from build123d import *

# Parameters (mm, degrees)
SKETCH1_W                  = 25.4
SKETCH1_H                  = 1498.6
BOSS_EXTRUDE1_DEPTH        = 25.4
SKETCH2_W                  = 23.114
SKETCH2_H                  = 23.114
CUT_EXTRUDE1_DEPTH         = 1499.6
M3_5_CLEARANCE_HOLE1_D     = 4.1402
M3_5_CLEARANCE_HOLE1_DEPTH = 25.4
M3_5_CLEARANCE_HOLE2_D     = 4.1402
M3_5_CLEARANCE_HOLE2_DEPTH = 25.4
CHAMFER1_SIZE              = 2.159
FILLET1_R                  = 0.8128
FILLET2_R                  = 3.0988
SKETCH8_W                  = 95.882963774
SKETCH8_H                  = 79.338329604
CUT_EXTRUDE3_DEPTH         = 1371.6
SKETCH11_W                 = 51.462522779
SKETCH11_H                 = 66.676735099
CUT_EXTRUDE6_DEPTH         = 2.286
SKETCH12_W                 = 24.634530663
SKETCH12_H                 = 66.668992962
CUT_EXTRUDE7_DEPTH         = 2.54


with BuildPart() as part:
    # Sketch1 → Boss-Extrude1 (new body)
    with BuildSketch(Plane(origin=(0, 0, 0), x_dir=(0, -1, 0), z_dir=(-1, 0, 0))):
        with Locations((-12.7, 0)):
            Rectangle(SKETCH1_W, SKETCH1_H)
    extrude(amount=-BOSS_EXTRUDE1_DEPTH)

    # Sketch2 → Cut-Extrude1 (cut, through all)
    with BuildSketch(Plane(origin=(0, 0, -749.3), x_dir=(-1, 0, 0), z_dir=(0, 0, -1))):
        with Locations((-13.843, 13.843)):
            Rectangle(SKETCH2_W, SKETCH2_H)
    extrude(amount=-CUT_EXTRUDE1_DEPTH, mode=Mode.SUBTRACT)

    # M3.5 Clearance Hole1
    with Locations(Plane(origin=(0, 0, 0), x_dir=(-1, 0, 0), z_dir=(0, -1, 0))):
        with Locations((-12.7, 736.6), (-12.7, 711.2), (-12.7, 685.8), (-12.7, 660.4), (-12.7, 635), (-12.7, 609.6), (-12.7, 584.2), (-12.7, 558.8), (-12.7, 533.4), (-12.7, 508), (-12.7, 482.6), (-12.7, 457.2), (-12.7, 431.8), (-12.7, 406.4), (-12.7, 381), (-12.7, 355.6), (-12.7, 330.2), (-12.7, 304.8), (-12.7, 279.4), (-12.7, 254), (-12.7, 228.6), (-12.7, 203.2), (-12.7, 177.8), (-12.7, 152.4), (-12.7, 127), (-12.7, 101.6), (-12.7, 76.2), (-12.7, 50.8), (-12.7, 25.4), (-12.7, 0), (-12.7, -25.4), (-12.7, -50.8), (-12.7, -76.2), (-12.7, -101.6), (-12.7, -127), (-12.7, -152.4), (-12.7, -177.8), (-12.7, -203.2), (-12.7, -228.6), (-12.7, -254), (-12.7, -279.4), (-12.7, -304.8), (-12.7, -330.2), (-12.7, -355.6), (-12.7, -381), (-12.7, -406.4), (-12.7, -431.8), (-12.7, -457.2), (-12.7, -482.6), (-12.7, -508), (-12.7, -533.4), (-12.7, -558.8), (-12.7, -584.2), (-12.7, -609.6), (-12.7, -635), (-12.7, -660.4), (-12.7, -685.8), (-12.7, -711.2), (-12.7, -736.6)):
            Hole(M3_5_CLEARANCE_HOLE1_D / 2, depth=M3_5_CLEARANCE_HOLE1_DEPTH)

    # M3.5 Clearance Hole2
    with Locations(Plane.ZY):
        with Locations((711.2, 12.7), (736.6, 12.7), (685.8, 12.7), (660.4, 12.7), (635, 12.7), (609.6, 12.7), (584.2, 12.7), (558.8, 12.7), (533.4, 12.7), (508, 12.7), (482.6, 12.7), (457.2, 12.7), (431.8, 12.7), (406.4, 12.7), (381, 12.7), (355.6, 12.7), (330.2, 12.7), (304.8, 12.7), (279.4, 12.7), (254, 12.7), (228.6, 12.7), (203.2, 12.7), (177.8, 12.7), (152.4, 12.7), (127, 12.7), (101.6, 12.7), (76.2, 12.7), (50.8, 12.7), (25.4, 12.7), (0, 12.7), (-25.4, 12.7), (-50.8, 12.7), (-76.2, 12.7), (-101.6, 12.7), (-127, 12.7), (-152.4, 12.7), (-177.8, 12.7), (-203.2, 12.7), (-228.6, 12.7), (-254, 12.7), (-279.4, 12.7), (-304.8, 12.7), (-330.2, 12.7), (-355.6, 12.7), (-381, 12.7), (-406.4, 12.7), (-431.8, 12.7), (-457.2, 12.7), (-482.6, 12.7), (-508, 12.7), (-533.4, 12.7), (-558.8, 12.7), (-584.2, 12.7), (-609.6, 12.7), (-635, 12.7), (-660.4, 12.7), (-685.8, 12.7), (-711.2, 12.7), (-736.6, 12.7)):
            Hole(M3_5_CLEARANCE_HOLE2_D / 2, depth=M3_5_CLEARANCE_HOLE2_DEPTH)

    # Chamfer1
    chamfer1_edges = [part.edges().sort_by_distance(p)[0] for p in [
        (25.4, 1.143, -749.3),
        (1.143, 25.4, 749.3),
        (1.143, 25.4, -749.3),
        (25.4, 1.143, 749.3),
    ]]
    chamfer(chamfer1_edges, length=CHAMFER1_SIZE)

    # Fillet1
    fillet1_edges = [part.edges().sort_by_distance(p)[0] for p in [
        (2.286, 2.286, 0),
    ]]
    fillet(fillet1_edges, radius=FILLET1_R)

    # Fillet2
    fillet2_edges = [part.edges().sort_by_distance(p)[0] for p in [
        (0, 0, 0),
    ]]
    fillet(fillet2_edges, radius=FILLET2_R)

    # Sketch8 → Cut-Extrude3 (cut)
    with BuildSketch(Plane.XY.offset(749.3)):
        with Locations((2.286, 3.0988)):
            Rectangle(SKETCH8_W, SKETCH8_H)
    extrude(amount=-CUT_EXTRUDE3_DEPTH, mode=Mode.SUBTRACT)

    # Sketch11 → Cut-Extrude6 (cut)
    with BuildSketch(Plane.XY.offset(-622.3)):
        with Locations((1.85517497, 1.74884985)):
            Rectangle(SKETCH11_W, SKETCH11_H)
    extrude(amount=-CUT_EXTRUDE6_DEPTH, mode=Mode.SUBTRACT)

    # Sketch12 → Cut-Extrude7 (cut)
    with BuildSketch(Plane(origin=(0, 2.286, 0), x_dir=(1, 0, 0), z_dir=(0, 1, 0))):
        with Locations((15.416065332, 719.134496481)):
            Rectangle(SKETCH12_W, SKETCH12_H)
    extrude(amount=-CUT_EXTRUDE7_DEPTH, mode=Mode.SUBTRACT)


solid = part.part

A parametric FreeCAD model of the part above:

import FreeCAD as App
import Part
import Sketcher
Q = App.Units.Quantity


def edges_at(feature, points):
    """Names of the edges that pass closest to the given points."""
    edges = feature.Shape.Edges
    near = lambda p: min(range(len(edges)), key=lambda i: edges[i].distToShape(Part.Vertex(*p))[0])
    return sorted({f"Edge{near(p) + 1}" for p in points})


def add_polygon(sketch, points):
    """Adds a closed chain of lines whose ends are joined by coincident constraints."""
    first, n = sketch.GeometryCount, len(points)
    for a, b in zip(points, points[1:] + points[:1]):
        sketch.addGeometry(Part.LineSegment(App.Vector(*a, 0), App.Vector(*b, 0)), False)
    for i in range(n):
        sketch.addConstraint(Sketcher.Constraint("Coincident", first + i, 2, first + (i + 1) % n, 1))

doc = App.newDocument("Part")
params = doc.addObject("Spreadsheet::Sheet", "Params")
for row, (alias, value) in enumerate([
    ("sketch1_width", "1 in"),
    ("sketch1_height", "59 in"),
    ("pad1_length", "1 in"),
    ("sketch2_width", "0.91 in"),
    ("sketch3_diameter", "0.163 in"),
    ("hole_diameter", "0.163 in"),
    ("hole_depth", "1 in"),
    ("sketch4_diameter", "0.163 in"),
    ("hole2_diameter", "0.163 in"),
    ("hole2_depth", "1 in"),
    ("chamfer_size", "0.085 in"),
    ("fillet_radius", "0.032 in"),
    ("fillet2_radius", "0.122 in"),
    ("pocket2_length", "54 in"),
    ("pocket3_length", "0.09 in"),
    ("pocket4_length", "0.1 in"),
], start=1):
    params.set(f"A{row}", alias)
    params.set(f"B{row}", "=" + value)
    params.setAlias(f"B{row}", alias)

body = doc.addObject("PartDesign::Body", "Body")

sketch1 = body.newObject("Sketcher::SketchObject", "Sketch")
sketch1.AttachmentSupport = (doc.getObject("YZ_Plane"), [""])
sketch1.MapMode = "FlatFace"
add_polygon(sketch1, [(25, 749), (25, -749), (0, -749), (0, 749)])
sketch1.addConstraint([
    Sketcher.Constraint("Vertical", 0),
    Sketcher.Constraint("Horizontal", 1),
    Sketcher.Constraint("Vertical", 2),
    Sketcher.Constraint("Horizontal", 3),
    Sketcher.Constraint("Symmetric", 1, 2, 2, 2, -1, 1),
    Sketcher.Constraint("DistanceX", 1, 2, 1, 1, Q("1 in")),
    Sketcher.Constraint("DistanceY", 0, 2, 0, 1, Q("59 in")),
])
sketch1.setExpression("Constraints[9]", "Params.sketch1_width")
sketch1.setExpression("Constraints[10]", "Params.sketch1_height")
pad1 = body.newObject("PartDesign::Pad", "Pad")
pad1.Profile = sketch1
pad1.setExpression("Length", "Params.pad1_length")

sketch2 = body.newObject("Sketcher::SketchObject", "Sketch001")
sketch2.AttachmentSupport = (doc.getObject("XY_Plane"), [""])
sketch2.MapMode = "FlatFace"
sketch2.AttachmentOffset = App.Placement(App.Vector(0, 0, -29.5 * 25.4), App.Rotation())
add_polygon(sketch2, [(25, 25), (25, 2), (2, 2), (2, 25)])
sketch2.addConstraint([
    Sketcher.Constraint("Vertical", 0),
    Sketcher.Constraint("Horizontal", 1),
    Sketcher.Constraint("Vertical", 2),
    Sketcher.Constraint("Horizontal", 3),
    Sketcher.Constraint("Equal", 3, 0),
    Sketcher.Constraint("DistanceX", -1, 1, 0, 2, Q("1 in")),
    Sketcher.Constraint("DistanceY", -1, 1, 2, 2, Q("1 in")),
    Sketcher.Constraint("DistanceX", 1, 2, 1, 1, Q("0.91 in")),
])
sketch2.setExpression("Constraints[11]", "Params.sketch2_width")
pocket1 = body.newObject("PartDesign::Pocket", "Pocket")
pocket1.Profile = sketch2
pocket1.Type = "ThroughAll"
pocket1.Reversed = True

sketch3 = body.newObject("Sketcher::SketchObject", "Sketch002")
sketch3.AttachmentSupport = (doc.getObject("XZ_Plane"), [""])
sketch3.MapMode = "FlatFace"
sketch3.addGeometry([
    Part.Circle(App.Vector(12.7, -736.6, 0), App.Vector(0, 0, 1), 2.1),
    Part.Circle(App.Vector(12.7, -711.2, 0), App.Vector(0, 0, 1), 2.1),
    Part.Circle(App.Vector(12.7, -685.8, 0), App.Vector(0, 0, 1), 2.1),
    Part.Circle(App.Vector(12.7, -660.4, 0), App.Vector(0, 0, 1), 2.1),
    Part.Circle(App.Vector(12.7, -635, 0), App.Vector(0, 0, 1), 2.1),
    Part.Circle(App.Vector(12.7, -609.6, 0), App.Vector(0, 0, 1), 2.1),
    Part.Circle(App.Vector(12.7, -584.2, 0), App.Vector(0, 0, 1), 2.1),
    Part.Circle(App.Vector(12.7, -558.8, 0), App.Vector(0, 0, 1), 2.1),
    Part.Circle(App.Vector(12.7, -533.4, 0), App.Vector(0, 0, 1), 2.1),
    Part.Circle(App.Vector(12.7, -508, 0), App.Vector(0, 0, 1), 2.1),
    Part.Circle(App.Vector(12.7, -482.6, 0), App.Vector(0, 0, 1), 2.1),
    Part.Circle(App.Vector(12.7, -457.2, 0), App.Vector(0, 0, 1), 2.1),
    Part.Circle(App.Vector(12.7, -431.8, 0), App.Vector(0, 0, 1), 2.1),
    Part.Circle(App.Vector(12.7, -406.4, 0), App.Vector(0, 0, 1), 2.1),
    Part.Circle(App.Vector(12.7, -381, 0), App.Vector(0, 0, 1), 2.1),
    Part.Circle(App.Vector(12.7, -355.6, 0), App.Vector(0, 0, 1), 2.1),
    Part.Circle(App.Vector(12.7, -330.2, 0), App.Vector(0, 0, 1), 2.1),
    Part.Circle(App.Vector(12.7, -304.8, 0), App.Vector(0, 0, 1), 2.1),
    Part.Circle(App.Vector(12.7, -279.4, 0), App.Vector(0, 0, 1), 2.1),
    Part.Circle(App.Vector(12.7, -254, 0), App.Vector(0, 0, 1), 2.1),
    Part.Circle(App.Vector(12.7, -228.6, 0), App.Vector(0, 0, 1), 2.1),
    Part.Circle(App.Vector(12.7, -203.2, 0), App.Vector(0, 0, 1), 2.1),
    Part.Circle(App.Vector(12.7, -177.8, 0), App.Vector(0, 0, 1), 2.1),
    Part.Circle(App.Vector(12.7, -152.4, 0), App.Vector(0, 0, 1), 2.1),
    Part.Circle(App.Vector(12.7, -127, 0), App.Vector(0, 0, 1), 2.1),
    Part.Circle(App.Vector(12.7, -101.6, 0), App.Vector(0, 0, 1), 2.1),
    Part.Circle(App.Vector(12.7, -76.2, 0), App.Vector(0, 0, 1), 2.1),
    Part.Circle(App.Vector(12.7, -50.8, 0), App.Vector(0, 0, 1), 2.1),
    Part.Circle(App.Vector(12.7, -25.4, 0), App.Vector(0, 0, 1), 2.1),
    Part.Circle(App.Vector(12.7, 0, 0), App.Vector(0, 0, 1), 2.1),
    Part.Circle(App.Vector(12.7, 25.4, 0), App.Vector(0, 0, 1), 2.1),
    Part.Circle(App.Vector(12.7, 50.8, 0), App.Vector(0, 0, 1), 2.1),
    Part.Circle(App.Vector(12.7, 76.2, 0), App.Vector(0, 0, 1), 2.1),
    Part.Circle(App.Vector(12.7, 101.6, 0), App.Vector(0, 0, 1), 2.1),
    Part.Circle(App.Vector(12.7, 127, 0), App.Vector(0, 0, 1), 2.1),
    Part.Circle(App.Vector(12.7, 152.4, 0), App.Vector(0, 0, 1), 2.1),
    Part.Circle(App.Vector(12.7, 177.8, 0), App.Vector(0, 0, 1), 2.1),
    Part.Circle(App.Vector(12.7, 203.2, 0), App.Vector(0, 0, 1), 2.1),
    Part.Circle(App.Vector(12.7, 228.6, 0), App.Vector(0, 0, 1), 2.1),
    Part.Circle(App.Vector(12.7, 254, 0), App.Vector(0, 0, 1), 2.1),
    Part.Circle(App.Vector(12.7, 279.4, 0), App.Vector(0, 0, 1), 2.1),
    Part.Circle(App.Vector(12.7, 304.8, 0), App.Vector(0, 0, 1), 2.1),
    Part.Circle(App.Vector(12.7, 330.2, 0), App.Vector(0, 0, 1), 2.1),
    Part.Circle(App.Vector(12.7, 355.6, 0), App.Vector(0, 0, 1), 2.1),
    Part.Circle(App.Vector(12.7, 381, 0), App.Vector(0, 0, 1), 2.1),
    Part.Circle(App.Vector(12.7, 406.4, 0), App.Vector(0, 0, 1), 2.1),
    Part.Circle(App.Vector(12.7, 431.8, 0), App.Vector(0, 0, 1), 2.1),
    Part.Circle(App.Vector(12.7, 457.2, 0), App.Vector(0, 0, 1), 2.1),
    Part.Circle(App.Vector(12.7, 482.6, 0), App.Vector(0, 0, 1), 2.1),
    Part.Circle(App.Vector(12.7, 508, 0), App.Vector(0, 0, 1), 2.1),
    Part.Circle(App.Vector(12.7, 533.4, 0), App.Vector(0, 0, 1), 2.1),
    Part.Circle(App.Vector(12.7, 558.8, 0), App.Vector(0, 0, 1), 2.1),
    Part.Circle(App.Vector(12.7, 584.2, 0), App.Vector(0, 0, 1), 2.1),
    Part.Circle(App.Vector(12.7, 609.6, 0), App.Vector(0, 0, 1), 2.1),
    Part.Circle(App.Vector(12.7, 635, 0), App.Vector(0, 0, 1), 2.1),
    Part.Circle(App.Vector(12.7, 660.4, 0), App.Vector(0, 0, 1), 2.1),
    Part.Circle(App.Vector(12.7, 685.8, 0), App.Vector(0, 0, 1), 2.1),
    Part.Circle(App.Vector(12.7, 711.2, 0), App.Vector(0, 0, 1), 2.1),
    Part.Circle(App.Vector(12.7, 736.6, 0), App.Vector(0, 0, 1), 2.1),
], False)
sketch3.addConstraint([
    Sketcher.Constraint("Equal", 0, 1),
    Sketcher.Constraint("Equal", 1, 2),
    Sketcher.Constraint("Equal", 2, 3),
    Sketcher.Constraint("Equal", 3, 4),
    Sketcher.Constraint("Equal", 4, 5),
    Sketcher.Constraint("Equal", 5, 6),
    Sketcher.Constraint("Equal", 6, 7),
    Sketcher.Constraint("Equal", 7, 8),
    Sketcher.Constraint("Equal", 8, 9),
    Sketcher.Constraint("Equal", 9, 10),
    Sketcher.Constraint("Equal", 10, 11),
    Sketcher.Constraint("Equal", 11, 12),
    Sketcher.Constraint("Equal", 12, 13),
    Sketcher.Constraint("Equal", 13, 14),
    Sketcher.Constraint("Equal", 14, 15),
    Sketcher.Constraint("Equal", 15, 16),
    Sketcher.Constraint("Equal", 16, 17),
    Sketcher.Constraint("Equal", 17, 18),
    Sketcher.Constraint("Equal", 18, 19),
    Sketcher.Constraint("Equal", 19, 20),
    Sketcher.Constraint("Equal", 20, 21),
    Sketcher.Constraint("Equal", 21, 22),
    Sketcher.Constraint("Equal", 22, 23),
    Sketcher.Constraint("Equal", 23, 24),
    Sketcher.Constraint("Equal", 24, 25),
    Sketcher.Constraint("Equal", 25, 26),
    Sketcher.Constraint("Equal", 26, 27),
    Sketcher.Constraint("Equal", 27, 28),
    Sketcher.Constraint("Equal", 28, 29),
    Sketcher.Constraint("Equal", 29, 30),
    Sketcher.Constraint("Equal", 30, 31),
    Sketcher.Constraint("Equal", 31, 32),
    Sketcher.Constraint("Equal", 32, 33),
    Sketcher.Constraint("Equal", 33, 34),
    Sketcher.Constraint("Equal", 34, 35),
    Sketcher.Constraint("Equal", 35, 36),
    Sketcher.Constraint("Equal", 36, 37),
    Sketcher.Constraint("Equal", 37, 38),
    Sketcher.Constraint("Equal", 38, 39),
    Sketcher.Constraint("Equal", 39, 40),
    Sketcher.Constraint("Equal", 40, 41),
    Sketcher.Constraint("Equal", 41, 42),
    Sketcher.Constraint("Equal", 42, 43),
    Sketcher.Constraint("Equal", 43, 44),
    Sketcher.Constraint("Equal", 44, 45),
    Sketcher.Constraint("Equal", 45, 46),
    Sketcher.Constraint("Equal", 46, 47),
    Sketcher.Constraint("Equal", 47, 48),
    Sketcher.Constraint("Equal", 48, 49),
    Sketcher.Constraint("Equal", 49, 50),
    Sketcher.Constraint("Equal", 50, 51),
    Sketcher.Constraint("Equal", 51, 52),
    Sketcher.Constraint("Equal", 52, 53),
    Sketcher.Constraint("Equal", 53, 54),
    Sketcher.Constraint("Equal", 54, 55),
    Sketcher.Constraint("Equal", 55, 56),
    Sketcher.Constraint("Equal", 56, 57),
    Sketcher.Constraint("Equal", 57, 58),
    Sketcher.Constraint("Symmetric", 28, 3, 30, 3, -1),
    Sketcher.Constraint("Symmetric", 27, 3, 31, 3, -1),
    Sketcher.Constraint("Symmetric", 26, 3, 32, 3, -1),
    Sketcher.Constraint("Symmetric", 25, 3, 33, 3, -1),
    Sketcher.Constraint("Symmetric", 24, 3, 34, 3, -1),
    Sketcher.Constraint("Symmetric", 23, 3, 35, 3, -1),
    Sketcher.Constraint("Symmetric", 22, 3, 36, 3, -1),
    Sketcher.Constraint("Symmetric", 21, 3, 37, 3, -1),
    Sketcher.Constraint("Symmetric", 20, 3, 38, 3, -1),
    Sketcher.Constraint("Symmetric", 19, 3, 39, 3, -1),
    Sketcher.Constraint("Symmetric", 18, 3, 40, 3, -1),
    Sketcher.Constraint("Symmetric", 17, 3, 41, 3, -1),
    Sketcher.Constraint("Symmetric", 16, 3, 42, 3, -1),
    Sketcher.Constraint("Symmetric", 15, 3, 43, 3, -1),
    Sketcher.Constraint("Symmetric", 14, 3, 44, 3, -1),
    Sketcher.Constraint("Symmetric", 13, 3, 45, 3, -1),
    Sketcher.Constraint("Symmetric", 12, 3, 46, 3, -1),
    Sketcher.Constraint("Symmetric", 11, 3, 47, 3, -1),
    Sketcher.Constraint("Symmetric", 10, 3, 48, 3, -1),
    Sketcher.Constraint("Symmetric", 9, 3, 49, 3, -1),
    Sketcher.Constraint("Symmetric", 8, 3, 50, 3, -1),
    Sketcher.Constraint("Symmetric", 7, 3, 51, 3, -1),
    Sketcher.Constraint("Symmetric", 6, 3, 52, 3, -1),
    Sketcher.Constraint("Symmetric", 5, 3, 53, 3, -1),
    Sketcher.Constraint("Symmetric", 4, 3, 54, 3, -1),
    Sketcher.Constraint("Symmetric", 3, 3, 55, 3, -1),
    Sketcher.Constraint("Symmetric", 2, 3, 56, 3, -1),
    Sketcher.Constraint("Symmetric", 1, 3, 57, 3, -1),
    Sketcher.Constraint("Symmetric", 0, 3, 58, 3, -1),
    Sketcher.Constraint("PointOnObject", 29, 3, -1),
    Sketcher.Constraint("Vertical", 0, 3, 1, 3),
    Sketcher.Constraint("Vertical", 1, 3, 2, 3),
    Sketcher.Constraint("Vertical", 2, 3, 3, 3),
    Sketcher.Constraint("Vertical", 3, 3, 4, 3),
    Sketcher.Constraint("Vertical", 4, 3, 5, 3),
    Sketcher.Constraint("Vertical", 5, 3, 6, 3),
    Sketcher.Constraint("Vertical", 6, 3, 7, 3),
    Sketcher.Constraint("Vertical", 7, 3, 8, 3),
    Sketcher.Constraint("Vertical", 8, 3, 9, 3),
    Sketcher.Constraint("Vertical", 9, 3, 10, 3),
    Sketcher.Constraint("Vertical", 10, 3, 11, 3),
    Sketcher.Constraint("Vertical", 11, 3, 12, 3),
    Sketcher.Constraint("Vertical", 12, 3, 13, 3),
    Sketcher.Constraint("Vertical", 13, 3, 14, 3),
    Sketcher.Constraint("Vertical", 14, 3, 15, 3),
    Sketcher.Constraint("Vertical", 15, 3, 16, 3),
    Sketcher.Constraint("Vertical", 16, 3, 17, 3),
    Sketcher.Constraint("Vertical", 17, 3, 18, 3),
    Sketcher.Constraint("Vertical", 18, 3, 19, 3),
    Sketcher.Constraint("Vertical", 19, 3, 20, 3),
    Sketcher.Constraint("Vertical", 20, 3, 21, 3),
    Sketcher.Constraint("Vertical", 21, 3, 22, 3),
    Sketcher.Constraint("Vertical", 22, 3, 23, 3),
    Sketcher.Constraint("Vertical", 23, 3, 24, 3),
    Sketcher.Constraint("Vertical", 24, 3, 25, 3),
    Sketcher.Constraint("Vertical", 25, 3, 26, 3),
    Sketcher.Constraint("Vertical", 26, 3, 27, 3),
    Sketcher.Constraint("Vertical", 27, 3, 28, 3),
    Sketcher.Constraint("Vertical", 28, 3, 29, 3),
    Sketcher.Constraint("Diameter", 0, Q("0.163 in")),
    Sketcher.Constraint("DistanceY", 0, 3, -1, 1, Q("29 in")),
    Sketcher.Constraint("DistanceY", 1, 3, -1, 1, Q("28 in")),
    Sketcher.Constraint("DistanceY", 2, 3, -1, 1, Q("27 in")),
    Sketcher.Constraint("DistanceY", 3, 3, -1, 1, Q("26 in")),
    Sketcher.Constraint("DistanceY", 4, 3, -1, 1, Q("25 in")),
    Sketcher.Constraint("DistanceY", 5, 3, -1, 1, Q("24 in")),
    Sketcher.Constraint("DistanceY", 6, 3, -1, 1, Q("23 in")),
    Sketcher.Constraint("DistanceY", 7, 3, -1, 1, Q("22 in")),
    Sketcher.Constraint("DistanceY", 8, 3, -1, 1, Q("21 in")),
    Sketcher.Constraint("DistanceY", 9, 3, -1, 1, Q("20 in")),
    Sketcher.Constraint("DistanceY", 10, 3, -1, 1, Q("19 in")),
    Sketcher.Constraint("DistanceY", 11, 3, -1, 1, Q("18 in")),
    Sketcher.Constraint("DistanceY", 12, 3, -1, 1, Q("17 in")),
    Sketcher.Constraint("DistanceY", 13, 3, -1, 1, Q("16 in")),
    Sketcher.Constraint("DistanceY", 14, 3, -1, 1, Q("15 in")),
    Sketcher.Constraint("DistanceY", 15, 3, -1, 1, Q("14 in")),
    Sketcher.Constraint("DistanceY", 16, 3, -1, 1, Q("13 in")),
    Sketcher.Constraint("DistanceY", 17, 3, -1, 1, Q("12 in")),
    Sketcher.Constraint("DistanceY", 18, 3, -1, 1, Q("11 in")),
    Sketcher.Constraint("DistanceY", 19, 3, -1, 1, Q("10 in")),
    Sketcher.Constraint("DistanceY", 20, 3, -1, 1, Q("9 in")),
    Sketcher.Constraint("DistanceY", 21, 3, -1, 1, Q("8 in")),
    Sketcher.Constraint("DistanceY", 22, 3, -1, 1, Q("7 in")),
    Sketcher.Constraint("DistanceY", 23, 3, -1, 1, Q("6 in")),
    Sketcher.Constraint("DistanceY", 24, 3, -1, 1, Q("5 in")),
    Sketcher.Constraint("DistanceY", 25, 3, -1, 1, Q("4 in")),
    Sketcher.Constraint("DistanceY", 26, 3, -1, 1, Q("3 in")),
    Sketcher.Constraint("DistanceY", 27, 3, -1, 1, Q("2 in")),
    Sketcher.Constraint("DistanceY", 28, 3, -1, 1, Q("1 in")),
    Sketcher.Constraint("DistanceX", -1, 1, 0, 3, Q("0.5 in")),
])
sketch3.setExpression("Constraints[117]", "Params.sketch3_diameter")
doc.recompute()
hole = body.newObject("PartDesign::Hole", "Hole")
hole.Profile = sketch3
hole.ThreadType = "None"
hole.setExpression("Diameter", "Params.hole_diameter")
hole.DepthType = "Dimension"
hole.setExpression("Depth", "Params.hole_depth")
hole.DrillPoint = "Flat"

sketch4 = body.newObject("Sketcher::SketchObject", "Sketch003")
sketch4.AttachmentSupport = (doc.getObject("YZ_Plane"), [""])
sketch4.MapMode = "FlatFace"
sketch4.addGeometry([
    Part.Circle(App.Vector(12.7, 711.2, 0), App.Vector(0, 0, 1), 2.1),
    Part.Circle(App.Vector(12.7, 736.6, 0), App.Vector(0, 0, 1), 2.1),
    Part.Circle(App.Vector(12.7, 685.8, 0), App.Vector(0, 0, 1), 2.1),
    Part.Circle(App.Vector(12.7, 660.4, 0), App.Vector(0, 0, 1), 2.1),
    Part.Circle(App.Vector(12.7, 635, 0), App.Vector(0, 0, 1), 2.1),
    Part.Circle(App.Vector(12.7, 609.6, 0), App.Vector(0, 0, 1), 2.1),
    Part.Circle(App.Vector(12.7, 584.2, 0), App.Vector(0, 0, 1), 2.1),
    Part.Circle(App.Vector(12.7, 558.8, 0), App.Vector(0, 0, 1), 2.1),
    Part.Circle(App.Vector(12.7, 533.4, 0), App.Vector(0, 0, 1), 2.1),
    Part.Circle(App.Vector(12.7, 508, 0), App.Vector(0, 0, 1), 2.1),
    Part.Circle(App.Vector(12.7, 482.6, 0), App.Vector(0, 0, 1), 2.1),
    Part.Circle(App.Vector(12.7, 457.2, 0), App.Vector(0, 0, 1), 2.1),
    Part.Circle(App.Vector(12.7, 431.8, 0), App.Vector(0, 0, 1), 2.1),
    Part.Circle(App.Vector(12.7, 406.4, 0), App.Vector(0, 0, 1), 2.1),
    Part.Circle(App.Vector(12.7, 381, 0), App.Vector(0, 0, 1), 2.1),
    Part.Circle(App.Vector(12.7, 355.6, 0), App.Vector(0, 0, 1), 2.1),
    Part.Circle(App.Vector(12.7, 330.2, 0), App.Vector(0, 0, 1), 2.1),
    Part.Circle(App.Vector(12.7, 304.8, 0), App.Vector(0, 0, 1), 2.1),
    Part.Circle(App.Vector(12.7, 279.4, 0), App.Vector(0, 0, 1), 2.1),
    Part.Circle(App.Vector(12.7, 254, 0), App.Vector(0, 0, 1), 2.1),
    Part.Circle(App.Vector(12.7, 228.6, 0), App.Vector(0, 0, 1), 2.1),
    Part.Circle(App.Vector(12.7, 203.2, 0), App.Vector(0, 0, 1), 2.1),
    Part.Circle(App.Vector(12.7, 177.8, 0), App.Vector(0, 0, 1), 2.1),
    Part.Circle(App.Vector(12.7, 152.4, 0), App.Vector(0, 0, 1), 2.1),
    Part.Circle(App.Vector(12.7, 127, 0), App.Vector(0, 0, 1), 2.1),
    Part.Circle(App.Vector(12.7, 101.6, 0), App.Vector(0, 0, 1), 2.1),
    Part.Circle(App.Vector(12.7, 76.2, 0), App.Vector(0, 0, 1), 2.1),
    Part.Circle(App.Vector(12.7, 50.8, 0), App.Vector(0, 0, 1), 2.1),
    Part.Circle(App.Vector(12.7, 25.4, 0), App.Vector(0, 0, 1), 2.1),
    Part.Circle(App.Vector(12.7, 0, 0), App.Vector(0, 0, 1), 2.1),
    Part.Circle(App.Vector(12.7, -25.4, 0), App.Vector(0, 0, 1), 2.1),
    Part.Circle(App.Vector(12.7, -50.8, 0), App.Vector(0, 0, 1), 2.1),
    Part.Circle(App.Vector(12.7, -76.2, 0), App.Vector(0, 0, 1), 2.1),
    Part.Circle(App.Vector(12.7, -101.6, 0), App.Vector(0, 0, 1), 2.1),
    Part.Circle(App.Vector(12.7, -127, 0), App.Vector(0, 0, 1), 2.1),
    Part.Circle(App.Vector(12.7, -152.4, 0), App.Vector(0, 0, 1), 2.1),
    Part.Circle(App.Vector(12.7, -177.8, 0), App.Vector(0, 0, 1), 2.1),
    Part.Circle(App.Vector(12.7, -203.2, 0), App.Vector(0, 0, 1), 2.1),
    Part.Circle(App.Vector(12.7, -228.6, 0), App.Vector(0, 0, 1), 2.1),
    Part.Circle(App.Vector(12.7, -254, 0), App.Vector(0, 0, 1), 2.1),
    Part.Circle(App.Vector(12.7, -279.4, 0), App.Vector(0, 0, 1), 2.1),
    Part.Circle(App.Vector(12.7, -304.8, 0), App.Vector(0, 0, 1), 2.1),
    Part.Circle(App.Vector(12.7, -330.2, 0), App.Vector(0, 0, 1), 2.1),
    Part.Circle(App.Vector(12.7, -355.6, 0), App.Vector(0, 0, 1), 2.1),
    Part.Circle(App.Vector(12.7, -381, 0), App.Vector(0, 0, 1), 2.1),
    Part.Circle(App.Vector(12.7, -406.4, 0), App.Vector(0, 0, 1), 2.1),
    Part.Circle(App.Vector(12.7, -431.8, 0), App.Vector(0, 0, 1), 2.1),
    Part.Circle(App.Vector(12.7, -457.2, 0), App.Vector(0, 0, 1), 2.1),
    Part.Circle(App.Vector(12.7, -482.6, 0), App.Vector(0, 0, 1), 2.1),
    Part.Circle(App.Vector(12.7, -508, 0), App.Vector(0, 0, 1), 2.1),
    Part.Circle(App.Vector(12.7, -533.4, 0), App.Vector(0, 0, 1), 2.1),
    Part.Circle(App.Vector(12.7, -558.8, 0), App.Vector(0, 0, 1), 2.1),
    Part.Circle(App.Vector(12.7, -584.2, 0), App.Vector(0, 0, 1), 2.1),
    Part.Circle(App.Vector(12.7, -609.6, 0), App.Vector(0, 0, 1), 2.1),
    Part.Circle(App.Vector(12.7, -635, 0), App.Vector(0, 0, 1), 2.1),
    Part.Circle(App.Vector(12.7, -660.4, 0), App.Vector(0, 0, 1), 2.1),
    Part.Circle(App.Vector(12.7, -685.8, 0), App.Vector(0, 0, 1), 2.1),
    Part.Circle(App.Vector(12.7, -711.2, 0), App.Vector(0, 0, 1), 2.1),
    Part.Circle(App.Vector(12.7, -736.6, 0), App.Vector(0, 0, 1), 2.1),
], False)
sketch4.addConstraint([
    Sketcher.Constraint("Equal", 0, 1),
    Sketcher.Constraint("Equal", 1, 2),
    Sketcher.Constraint("Equal", 2, 3),
    Sketcher.Constraint("Equal", 3, 4),
    Sketcher.Constraint("Equal", 4, 5),
    Sketcher.Constraint("Equal", 5, 6),
    Sketcher.Constraint("Equal", 6, 7),
    Sketcher.Constraint("Equal", 7, 8),
    Sketcher.Constraint("Equal", 8, 9),
    Sketcher.Constraint("Equal", 9, 10),
    Sketcher.Constraint("Equal", 10, 11),
    Sketcher.Constraint("Equal", 11, 12),
    Sketcher.Constraint("Equal", 12, 13),
    Sketcher.Constraint("Equal", 13, 14),
    Sketcher.Constraint("Equal", 14, 15),
    Sketcher.Constraint("Equal", 15, 16),
    Sketcher.Constraint("Equal", 16, 17),
    Sketcher.Constraint("Equal", 17, 18),
    Sketcher.Constraint("Equal", 18, 19),
    Sketcher.Constraint("Equal", 19, 20),
    Sketcher.Constraint("Equal", 20, 21),
    Sketcher.Constraint("Equal", 21, 22),
    Sketcher.Constraint("Equal", 22, 23),
    Sketcher.Constraint("Equal", 23, 24),
    Sketcher.Constraint("Equal", 24, 25),
    Sketcher.Constraint("Equal", 25, 26),
    Sketcher.Constraint("Equal", 26, 27),
    Sketcher.Constraint("Equal", 27, 28),
    Sketcher.Constraint("Equal", 28, 29),
    Sketcher.Constraint("Equal", 29, 30),
    Sketcher.Constraint("Equal", 30, 31),
    Sketcher.Constraint("Equal", 31, 32),
    Sketcher.Constraint("Equal", 32, 33),
    Sketcher.Constraint("Equal", 33, 34),
    Sketcher.Constraint("Equal", 34, 35),
    Sketcher.Constraint("Equal", 35, 36),
    Sketcher.Constraint("Equal", 36, 37),
    Sketcher.Constraint("Equal", 37, 38),
    Sketcher.Constraint("Equal", 38, 39),
    Sketcher.Constraint("Equal", 39, 40),
    Sketcher.Constraint("Equal", 40, 41),
    Sketcher.Constraint("Equal", 41, 42),
    Sketcher.Constraint("Equal", 42, 43),
    Sketcher.Constraint("Equal", 43, 44),
    Sketcher.Constraint("Equal", 44, 45),
    Sketcher.Constraint("Equal", 45, 46),
    Sketcher.Constraint("Equal", 46, 47),
    Sketcher.Constraint("Equal", 47, 48),
    Sketcher.Constraint("Equal", 48, 49),
    Sketcher.Constraint("Equal", 49, 50),
    Sketcher.Constraint("Equal", 50, 51),
    Sketcher.Constraint("Equal", 51, 52),
    Sketcher.Constraint("Equal", 52, 53),
    Sketcher.Constraint("Equal", 53, 54),
    Sketcher.Constraint("Equal", 54, 55),
    Sketcher.Constraint("Equal", 55, 56),
    Sketcher.Constraint("Equal", 56, 57),
    Sketcher.Constraint("Equal", 57, 58),
    Sketcher.Constraint("Symmetric", 28, 3, 30, 3, -1),
    Sketcher.Constraint("Symmetric", 27, 3, 31, 3, -1),
    Sketcher.Constraint("Symmetric", 26, 3, 32, 3, -1),
    Sketcher.Constraint("Symmetric", 25, 3, 33, 3, -1),
    Sketcher.Constraint("Symmetric", 24, 3, 34, 3, -1),
    Sketcher.Constraint("Symmetric", 23, 3, 35, 3, -1),
    Sketcher.Constraint("Symmetric", 22, 3, 36, 3, -1),
    Sketcher.Constraint("Symmetric", 21, 3, 37, 3, -1),
    Sketcher.Constraint("Symmetric", 20, 3, 38, 3, -1),
    Sketcher.Constraint("Symmetric", 19, 3, 39, 3, -1),
    Sketcher.Constraint("Symmetric", 18, 3, 40, 3, -1),
    Sketcher.Constraint("Symmetric", 17, 3, 41, 3, -1),
    Sketcher.Constraint("Symmetric", 16, 3, 42, 3, -1),
    Sketcher.Constraint("Symmetric", 15, 3, 43, 3, -1),
    Sketcher.Constraint("Symmetric", 14, 3, 44, 3, -1),
    Sketcher.Constraint("Symmetric", 13, 3, 45, 3, -1),
    Sketcher.Constraint("Symmetric", 12, 3, 46, 3, -1),
    Sketcher.Constraint("Symmetric", 11, 3, 47, 3, -1),
    Sketcher.Constraint("Symmetric", 10, 3, 48, 3, -1),
    Sketcher.Constraint("Symmetric", 9, 3, 49, 3, -1),
    Sketcher.Constraint("Symmetric", 8, 3, 50, 3, -1),
    Sketcher.Constraint("Symmetric", 7, 3, 51, 3, -1),
    Sketcher.Constraint("Symmetric", 6, 3, 52, 3, -1),
    Sketcher.Constraint("Symmetric", 5, 3, 53, 3, -1),
    Sketcher.Constraint("Symmetric", 4, 3, 54, 3, -1),
    Sketcher.Constraint("Symmetric", 3, 3, 55, 3, -1),
    Sketcher.Constraint("Symmetric", 2, 3, 56, 3, -1),
    Sketcher.Constraint("Symmetric", 0, 3, 57, 3, -1),
    Sketcher.Constraint("Symmetric", 1, 3, 58, 3, -1),
    Sketcher.Constraint("PointOnObject", 29, 3, -1),
    Sketcher.Constraint("Vertical", 0, 3, 1, 3),
    Sketcher.Constraint("Vertical", 1, 3, 2, 3),
    Sketcher.Constraint("Vertical", 2, 3, 3, 3),
    Sketcher.Constraint("Vertical", 3, 3, 4, 3),
    Sketcher.Constraint("Vertical", 4, 3, 5, 3),
    Sketcher.Constraint("Vertical", 5, 3, 6, 3),
    Sketcher.Constraint("Vertical", 6, 3, 7, 3),
    Sketcher.Constraint("Vertical", 7, 3, 8, 3),
    Sketcher.Constraint("Vertical", 8, 3, 9, 3),
    Sketcher.Constraint("Vertical", 9, 3, 10, 3),
    Sketcher.Constraint("Vertical", 10, 3, 11, 3),
    Sketcher.Constraint("Vertical", 11, 3, 12, 3),
    Sketcher.Constraint("Vertical", 12, 3, 13, 3),
    Sketcher.Constraint("Vertical", 13, 3, 14, 3),
    Sketcher.Constraint("Vertical", 14, 3, 15, 3),
    Sketcher.Constraint("Vertical", 15, 3, 16, 3),
    Sketcher.Constraint("Vertical", 16, 3, 17, 3),
    Sketcher.Constraint("Vertical", 17, 3, 18, 3),
    Sketcher.Constraint("Vertical", 18, 3, 19, 3),
    Sketcher.Constraint("Vertical", 19, 3, 20, 3),
    Sketcher.Constraint("Vertical", 20, 3, 21, 3),
    Sketcher.Constraint("Vertical", 21, 3, 22, 3),
    Sketcher.Constraint("Vertical", 22, 3, 23, 3),
    Sketcher.Constraint("Vertical", 23, 3, 24, 3),
    Sketcher.Constraint("Vertical", 24, 3, 25, 3),
    Sketcher.Constraint("Vertical", 25, 3, 26, 3),
    Sketcher.Constraint("Vertical", 26, 3, 27, 3),
    Sketcher.Constraint("Vertical", 27, 3, 28, 3),
    Sketcher.Constraint("Vertical", 28, 3, 29, 3),
    Sketcher.Constraint("Diameter", 0, Q("0.163 in")),
    Sketcher.Constraint("DistanceY", -1, 1, 0, 3, Q("28 in")),
    Sketcher.Constraint("DistanceY", -1, 1, 1, 3, Q("29 in")),
    Sketcher.Constraint("DistanceY", -1, 1, 2, 3, Q("27 in")),
    Sketcher.Constraint("DistanceY", -1, 1, 3, 3, Q("26 in")),
    Sketcher.Constraint("DistanceY", -1, 1, 4, 3, Q("25 in")),
    Sketcher.Constraint("DistanceY", -1, 1, 5, 3, Q("24 in")),
    Sketcher.Constraint("DistanceY", -1, 1, 6, 3, Q("23 in")),
    Sketcher.Constraint("DistanceY", -1, 1, 7, 3, Q("22 in")),
    Sketcher.Constraint("DistanceY", -1, 1, 8, 3, Q("21 in")),
    Sketcher.Constraint("DistanceY", -1, 1, 9, 3, Q("20 in")),
    Sketcher.Constraint("DistanceY", -1, 1, 10, 3, Q("19 in")),
    Sketcher.Constraint("DistanceY", -1, 1, 11, 3, Q("18 in")),
    Sketcher.Constraint("DistanceY", -1, 1, 12, 3, Q("17 in")),
    Sketcher.Constraint("DistanceY", -1, 1, 13, 3, Q("16 in")),
    Sketcher.Constraint("DistanceY", -1, 1, 14, 3, Q("15 in")),
    Sketcher.Constraint("DistanceY", -1, 1, 15, 3, Q("14 in")),
    Sketcher.Constraint("DistanceY", -1, 1, 16, 3, Q("13 in")),
    Sketcher.Constraint("DistanceY", -1, 1, 17, 3, Q("12 in")),
    Sketcher.Constraint("DistanceY", -1, 1, 18, 3, Q("11 in")),
    Sketcher.Constraint("DistanceY", -1, 1, 19, 3, Q("10 in")),
    Sketcher.Constraint("DistanceY", -1, 1, 20, 3, Q("9 in")),
    Sketcher.Constraint("DistanceY", -1, 1, 21, 3, Q("8 in")),
    Sketcher.Constraint("DistanceY", -1, 1, 22, 3, Q("7 in")),
    Sketcher.Constraint("DistanceY", -1, 1, 23, 3, Q("6 in")),
    Sketcher.Constraint("DistanceY", -1, 1, 24, 3, Q("5 in")),
    Sketcher.Constraint("DistanceY", -1, 1, 25, 3, Q("4 in")),
    Sketcher.Constraint("DistanceY", -1, 1, 26, 3, Q("3 in")),
    Sketcher.Constraint("DistanceY", -1, 1, 27, 3, Q("2 in")),
    Sketcher.Constraint("DistanceY", -1, 1, 28, 3, Q("1 in")),
    Sketcher.Constraint("DistanceX", -1, 1, 0, 3, Q("0.5 in")),
])
sketch4.setExpression("Constraints[117]", "Params.sketch4_diameter")
doc.recompute()
hole2 = body.newObject("PartDesign::Hole", "Hole001")
hole2.Profile = sketch4
hole2.ThreadType = "None"
hole2.setExpression("Diameter", "Params.hole2_diameter")
hole2.DepthType = "Dimension"
hole2.setExpression("Depth", "Params.hole2_depth")
hole2.DrillPoint = "Flat"
hole2.Reversed = True
doc.recompute()

chamfer = body.newObject("PartDesign::Chamfer", "Chamfer")
chamfer.Base = (hole2, edges_at(hole2, [
    (25.4, 1.143, -749.3),
    (1.143, 25.4, 749.3),
    (1.143, 25.4, -749.3),
    (25.4, 1.143, 749.3),
]))
chamfer.setExpression("Size", "Params.chamfer_size")
doc.recompute()

fillet = body.newObject("PartDesign::Fillet", "Fillet")
fillet.Base = (chamfer, edges_at(chamfer, [(2.286, 2.286, 0)]))
fillet.setExpression("Radius", "Params.fillet_radius")
doc.recompute()

fillet2 = body.newObject("PartDesign::Fillet", "Fillet001")
fillet2.Base = (fillet, edges_at(fillet, [(0, 0, 0)]))
fillet2.setExpression("Radius", "Params.fillet2_radius")

sketch5 = body.newObject("Sketcher::SketchObject", "Sketch004")
sketch5.AttachmentSupport = (doc.getObject("XY_Plane"), [""])
sketch5.MapMode = "FlatFace"
sketch5.AttachmentOffset = App.Placement(App.Vector(0, 0, 29.5 * 25.4), App.Rotation())
add_polygon(sketch5, [(-46, 43), (-46, -37), (50, -37), (50, 43)])
sketch5.addConstraint([
    Sketcher.Constraint("Vertical", 0),
    Sketcher.Constraint("Horizontal", 1),
    Sketcher.Constraint("Vertical", 2),
    Sketcher.Constraint("Horizontal", 3),
    Sketcher.Constraint("DistanceY", 0, 2, 0, 1, 79.33833),
    Sketcher.Constraint("DistanceX", 1, 1, 1, 2, 95.882964),
    Sketcher.Constraint("DistanceX", 0, 2, -1, 1, 45.655482),
    Sketcher.Constraint("DistanceY", 0, 2, -1, 1, 36.570365),
])
pocket2 = body.newObject("PartDesign::Pocket", "Pocket001")
pocket2.Profile = sketch5
pocket2.setExpression("Length", "Params.pocket2_length")

sketch6 = body.newObject("Sketcher::SketchObject", "Sketch005")
sketch6.AttachmentSupport = (doc.getObject("XY_Plane"), [""])
sketch6.MapMode = "FlatFace"
sketch6.AttachmentOffset = App.Placement(App.Vector(0, 0, -24.5 * 25.4), App.Rotation())
add_polygon(sketch6, [(-24, 35), (-24, -32), (28, -32), (28, 35)])
sketch6.addConstraint([
    Sketcher.Constraint("Vertical", 0),
    Sketcher.Constraint("Horizontal", 1),
    Sketcher.Constraint("Vertical", 2),
    Sketcher.Constraint("Horizontal", 3),
    Sketcher.Constraint("DistanceX", 1, 1, 1, 2, 51.462523),
    Sketcher.Constraint("DistanceY", 0, 2, 0, 1, 66.676735),
    Sketcher.Constraint("DistanceX", 0, 2, -1, 1, 23.876086),
    Sketcher.Constraint("DistanceY", 0, 2, -1, 1, 31.589518),
])
pocket3 = body.newObject("PartDesign::Pocket", "Pocket002")
pocket3.Profile = sketch6
pocket3.setExpression("Length", "Params.pocket3_length")

sketch7 = body.newObject("Sketcher::SketchObject", "Sketch006")
sketch7.AttachmentSupport = (doc.getObject("XZ_Plane"), [""])
sketch7.MapMode = "FlatFace"
sketch7.AttachmentOffset = App.Placement(App.Vector(0, 0, -0.09 * 25.4), App.Rotation())
add_polygon(sketch7, [(3, -752), (3, -686), (28, -686), (28, -752)])
sketch7.addConstraint([
    Sketcher.Constraint("Vertical", 0),
    Sketcher.Constraint("Horizontal", 1),
    Sketcher.Constraint("Vertical", 2),
    Sketcher.Constraint("Horizontal", 3),
    Sketcher.Constraint("DistanceY", 0, 2, -1, 1, Q("27 in")),
    Sketcher.Constraint("DistanceX", -1, 1, 0, 2, Q("0.122 in")),
    Sketcher.Constraint("DistanceX", 1, 1, 1, 2, 24.634531),
    Sketcher.Constraint("DistanceY", 0, 1, 0, 2, 66.668993),
])
pocket4 = body.newObject("PartDesign::Pocket", "Pocket003")
pocket4.Profile = sketch7
pocket4.setExpression("Length", "Params.pocket4_length")
pocket4.Reversed = True

doc.recompute()
